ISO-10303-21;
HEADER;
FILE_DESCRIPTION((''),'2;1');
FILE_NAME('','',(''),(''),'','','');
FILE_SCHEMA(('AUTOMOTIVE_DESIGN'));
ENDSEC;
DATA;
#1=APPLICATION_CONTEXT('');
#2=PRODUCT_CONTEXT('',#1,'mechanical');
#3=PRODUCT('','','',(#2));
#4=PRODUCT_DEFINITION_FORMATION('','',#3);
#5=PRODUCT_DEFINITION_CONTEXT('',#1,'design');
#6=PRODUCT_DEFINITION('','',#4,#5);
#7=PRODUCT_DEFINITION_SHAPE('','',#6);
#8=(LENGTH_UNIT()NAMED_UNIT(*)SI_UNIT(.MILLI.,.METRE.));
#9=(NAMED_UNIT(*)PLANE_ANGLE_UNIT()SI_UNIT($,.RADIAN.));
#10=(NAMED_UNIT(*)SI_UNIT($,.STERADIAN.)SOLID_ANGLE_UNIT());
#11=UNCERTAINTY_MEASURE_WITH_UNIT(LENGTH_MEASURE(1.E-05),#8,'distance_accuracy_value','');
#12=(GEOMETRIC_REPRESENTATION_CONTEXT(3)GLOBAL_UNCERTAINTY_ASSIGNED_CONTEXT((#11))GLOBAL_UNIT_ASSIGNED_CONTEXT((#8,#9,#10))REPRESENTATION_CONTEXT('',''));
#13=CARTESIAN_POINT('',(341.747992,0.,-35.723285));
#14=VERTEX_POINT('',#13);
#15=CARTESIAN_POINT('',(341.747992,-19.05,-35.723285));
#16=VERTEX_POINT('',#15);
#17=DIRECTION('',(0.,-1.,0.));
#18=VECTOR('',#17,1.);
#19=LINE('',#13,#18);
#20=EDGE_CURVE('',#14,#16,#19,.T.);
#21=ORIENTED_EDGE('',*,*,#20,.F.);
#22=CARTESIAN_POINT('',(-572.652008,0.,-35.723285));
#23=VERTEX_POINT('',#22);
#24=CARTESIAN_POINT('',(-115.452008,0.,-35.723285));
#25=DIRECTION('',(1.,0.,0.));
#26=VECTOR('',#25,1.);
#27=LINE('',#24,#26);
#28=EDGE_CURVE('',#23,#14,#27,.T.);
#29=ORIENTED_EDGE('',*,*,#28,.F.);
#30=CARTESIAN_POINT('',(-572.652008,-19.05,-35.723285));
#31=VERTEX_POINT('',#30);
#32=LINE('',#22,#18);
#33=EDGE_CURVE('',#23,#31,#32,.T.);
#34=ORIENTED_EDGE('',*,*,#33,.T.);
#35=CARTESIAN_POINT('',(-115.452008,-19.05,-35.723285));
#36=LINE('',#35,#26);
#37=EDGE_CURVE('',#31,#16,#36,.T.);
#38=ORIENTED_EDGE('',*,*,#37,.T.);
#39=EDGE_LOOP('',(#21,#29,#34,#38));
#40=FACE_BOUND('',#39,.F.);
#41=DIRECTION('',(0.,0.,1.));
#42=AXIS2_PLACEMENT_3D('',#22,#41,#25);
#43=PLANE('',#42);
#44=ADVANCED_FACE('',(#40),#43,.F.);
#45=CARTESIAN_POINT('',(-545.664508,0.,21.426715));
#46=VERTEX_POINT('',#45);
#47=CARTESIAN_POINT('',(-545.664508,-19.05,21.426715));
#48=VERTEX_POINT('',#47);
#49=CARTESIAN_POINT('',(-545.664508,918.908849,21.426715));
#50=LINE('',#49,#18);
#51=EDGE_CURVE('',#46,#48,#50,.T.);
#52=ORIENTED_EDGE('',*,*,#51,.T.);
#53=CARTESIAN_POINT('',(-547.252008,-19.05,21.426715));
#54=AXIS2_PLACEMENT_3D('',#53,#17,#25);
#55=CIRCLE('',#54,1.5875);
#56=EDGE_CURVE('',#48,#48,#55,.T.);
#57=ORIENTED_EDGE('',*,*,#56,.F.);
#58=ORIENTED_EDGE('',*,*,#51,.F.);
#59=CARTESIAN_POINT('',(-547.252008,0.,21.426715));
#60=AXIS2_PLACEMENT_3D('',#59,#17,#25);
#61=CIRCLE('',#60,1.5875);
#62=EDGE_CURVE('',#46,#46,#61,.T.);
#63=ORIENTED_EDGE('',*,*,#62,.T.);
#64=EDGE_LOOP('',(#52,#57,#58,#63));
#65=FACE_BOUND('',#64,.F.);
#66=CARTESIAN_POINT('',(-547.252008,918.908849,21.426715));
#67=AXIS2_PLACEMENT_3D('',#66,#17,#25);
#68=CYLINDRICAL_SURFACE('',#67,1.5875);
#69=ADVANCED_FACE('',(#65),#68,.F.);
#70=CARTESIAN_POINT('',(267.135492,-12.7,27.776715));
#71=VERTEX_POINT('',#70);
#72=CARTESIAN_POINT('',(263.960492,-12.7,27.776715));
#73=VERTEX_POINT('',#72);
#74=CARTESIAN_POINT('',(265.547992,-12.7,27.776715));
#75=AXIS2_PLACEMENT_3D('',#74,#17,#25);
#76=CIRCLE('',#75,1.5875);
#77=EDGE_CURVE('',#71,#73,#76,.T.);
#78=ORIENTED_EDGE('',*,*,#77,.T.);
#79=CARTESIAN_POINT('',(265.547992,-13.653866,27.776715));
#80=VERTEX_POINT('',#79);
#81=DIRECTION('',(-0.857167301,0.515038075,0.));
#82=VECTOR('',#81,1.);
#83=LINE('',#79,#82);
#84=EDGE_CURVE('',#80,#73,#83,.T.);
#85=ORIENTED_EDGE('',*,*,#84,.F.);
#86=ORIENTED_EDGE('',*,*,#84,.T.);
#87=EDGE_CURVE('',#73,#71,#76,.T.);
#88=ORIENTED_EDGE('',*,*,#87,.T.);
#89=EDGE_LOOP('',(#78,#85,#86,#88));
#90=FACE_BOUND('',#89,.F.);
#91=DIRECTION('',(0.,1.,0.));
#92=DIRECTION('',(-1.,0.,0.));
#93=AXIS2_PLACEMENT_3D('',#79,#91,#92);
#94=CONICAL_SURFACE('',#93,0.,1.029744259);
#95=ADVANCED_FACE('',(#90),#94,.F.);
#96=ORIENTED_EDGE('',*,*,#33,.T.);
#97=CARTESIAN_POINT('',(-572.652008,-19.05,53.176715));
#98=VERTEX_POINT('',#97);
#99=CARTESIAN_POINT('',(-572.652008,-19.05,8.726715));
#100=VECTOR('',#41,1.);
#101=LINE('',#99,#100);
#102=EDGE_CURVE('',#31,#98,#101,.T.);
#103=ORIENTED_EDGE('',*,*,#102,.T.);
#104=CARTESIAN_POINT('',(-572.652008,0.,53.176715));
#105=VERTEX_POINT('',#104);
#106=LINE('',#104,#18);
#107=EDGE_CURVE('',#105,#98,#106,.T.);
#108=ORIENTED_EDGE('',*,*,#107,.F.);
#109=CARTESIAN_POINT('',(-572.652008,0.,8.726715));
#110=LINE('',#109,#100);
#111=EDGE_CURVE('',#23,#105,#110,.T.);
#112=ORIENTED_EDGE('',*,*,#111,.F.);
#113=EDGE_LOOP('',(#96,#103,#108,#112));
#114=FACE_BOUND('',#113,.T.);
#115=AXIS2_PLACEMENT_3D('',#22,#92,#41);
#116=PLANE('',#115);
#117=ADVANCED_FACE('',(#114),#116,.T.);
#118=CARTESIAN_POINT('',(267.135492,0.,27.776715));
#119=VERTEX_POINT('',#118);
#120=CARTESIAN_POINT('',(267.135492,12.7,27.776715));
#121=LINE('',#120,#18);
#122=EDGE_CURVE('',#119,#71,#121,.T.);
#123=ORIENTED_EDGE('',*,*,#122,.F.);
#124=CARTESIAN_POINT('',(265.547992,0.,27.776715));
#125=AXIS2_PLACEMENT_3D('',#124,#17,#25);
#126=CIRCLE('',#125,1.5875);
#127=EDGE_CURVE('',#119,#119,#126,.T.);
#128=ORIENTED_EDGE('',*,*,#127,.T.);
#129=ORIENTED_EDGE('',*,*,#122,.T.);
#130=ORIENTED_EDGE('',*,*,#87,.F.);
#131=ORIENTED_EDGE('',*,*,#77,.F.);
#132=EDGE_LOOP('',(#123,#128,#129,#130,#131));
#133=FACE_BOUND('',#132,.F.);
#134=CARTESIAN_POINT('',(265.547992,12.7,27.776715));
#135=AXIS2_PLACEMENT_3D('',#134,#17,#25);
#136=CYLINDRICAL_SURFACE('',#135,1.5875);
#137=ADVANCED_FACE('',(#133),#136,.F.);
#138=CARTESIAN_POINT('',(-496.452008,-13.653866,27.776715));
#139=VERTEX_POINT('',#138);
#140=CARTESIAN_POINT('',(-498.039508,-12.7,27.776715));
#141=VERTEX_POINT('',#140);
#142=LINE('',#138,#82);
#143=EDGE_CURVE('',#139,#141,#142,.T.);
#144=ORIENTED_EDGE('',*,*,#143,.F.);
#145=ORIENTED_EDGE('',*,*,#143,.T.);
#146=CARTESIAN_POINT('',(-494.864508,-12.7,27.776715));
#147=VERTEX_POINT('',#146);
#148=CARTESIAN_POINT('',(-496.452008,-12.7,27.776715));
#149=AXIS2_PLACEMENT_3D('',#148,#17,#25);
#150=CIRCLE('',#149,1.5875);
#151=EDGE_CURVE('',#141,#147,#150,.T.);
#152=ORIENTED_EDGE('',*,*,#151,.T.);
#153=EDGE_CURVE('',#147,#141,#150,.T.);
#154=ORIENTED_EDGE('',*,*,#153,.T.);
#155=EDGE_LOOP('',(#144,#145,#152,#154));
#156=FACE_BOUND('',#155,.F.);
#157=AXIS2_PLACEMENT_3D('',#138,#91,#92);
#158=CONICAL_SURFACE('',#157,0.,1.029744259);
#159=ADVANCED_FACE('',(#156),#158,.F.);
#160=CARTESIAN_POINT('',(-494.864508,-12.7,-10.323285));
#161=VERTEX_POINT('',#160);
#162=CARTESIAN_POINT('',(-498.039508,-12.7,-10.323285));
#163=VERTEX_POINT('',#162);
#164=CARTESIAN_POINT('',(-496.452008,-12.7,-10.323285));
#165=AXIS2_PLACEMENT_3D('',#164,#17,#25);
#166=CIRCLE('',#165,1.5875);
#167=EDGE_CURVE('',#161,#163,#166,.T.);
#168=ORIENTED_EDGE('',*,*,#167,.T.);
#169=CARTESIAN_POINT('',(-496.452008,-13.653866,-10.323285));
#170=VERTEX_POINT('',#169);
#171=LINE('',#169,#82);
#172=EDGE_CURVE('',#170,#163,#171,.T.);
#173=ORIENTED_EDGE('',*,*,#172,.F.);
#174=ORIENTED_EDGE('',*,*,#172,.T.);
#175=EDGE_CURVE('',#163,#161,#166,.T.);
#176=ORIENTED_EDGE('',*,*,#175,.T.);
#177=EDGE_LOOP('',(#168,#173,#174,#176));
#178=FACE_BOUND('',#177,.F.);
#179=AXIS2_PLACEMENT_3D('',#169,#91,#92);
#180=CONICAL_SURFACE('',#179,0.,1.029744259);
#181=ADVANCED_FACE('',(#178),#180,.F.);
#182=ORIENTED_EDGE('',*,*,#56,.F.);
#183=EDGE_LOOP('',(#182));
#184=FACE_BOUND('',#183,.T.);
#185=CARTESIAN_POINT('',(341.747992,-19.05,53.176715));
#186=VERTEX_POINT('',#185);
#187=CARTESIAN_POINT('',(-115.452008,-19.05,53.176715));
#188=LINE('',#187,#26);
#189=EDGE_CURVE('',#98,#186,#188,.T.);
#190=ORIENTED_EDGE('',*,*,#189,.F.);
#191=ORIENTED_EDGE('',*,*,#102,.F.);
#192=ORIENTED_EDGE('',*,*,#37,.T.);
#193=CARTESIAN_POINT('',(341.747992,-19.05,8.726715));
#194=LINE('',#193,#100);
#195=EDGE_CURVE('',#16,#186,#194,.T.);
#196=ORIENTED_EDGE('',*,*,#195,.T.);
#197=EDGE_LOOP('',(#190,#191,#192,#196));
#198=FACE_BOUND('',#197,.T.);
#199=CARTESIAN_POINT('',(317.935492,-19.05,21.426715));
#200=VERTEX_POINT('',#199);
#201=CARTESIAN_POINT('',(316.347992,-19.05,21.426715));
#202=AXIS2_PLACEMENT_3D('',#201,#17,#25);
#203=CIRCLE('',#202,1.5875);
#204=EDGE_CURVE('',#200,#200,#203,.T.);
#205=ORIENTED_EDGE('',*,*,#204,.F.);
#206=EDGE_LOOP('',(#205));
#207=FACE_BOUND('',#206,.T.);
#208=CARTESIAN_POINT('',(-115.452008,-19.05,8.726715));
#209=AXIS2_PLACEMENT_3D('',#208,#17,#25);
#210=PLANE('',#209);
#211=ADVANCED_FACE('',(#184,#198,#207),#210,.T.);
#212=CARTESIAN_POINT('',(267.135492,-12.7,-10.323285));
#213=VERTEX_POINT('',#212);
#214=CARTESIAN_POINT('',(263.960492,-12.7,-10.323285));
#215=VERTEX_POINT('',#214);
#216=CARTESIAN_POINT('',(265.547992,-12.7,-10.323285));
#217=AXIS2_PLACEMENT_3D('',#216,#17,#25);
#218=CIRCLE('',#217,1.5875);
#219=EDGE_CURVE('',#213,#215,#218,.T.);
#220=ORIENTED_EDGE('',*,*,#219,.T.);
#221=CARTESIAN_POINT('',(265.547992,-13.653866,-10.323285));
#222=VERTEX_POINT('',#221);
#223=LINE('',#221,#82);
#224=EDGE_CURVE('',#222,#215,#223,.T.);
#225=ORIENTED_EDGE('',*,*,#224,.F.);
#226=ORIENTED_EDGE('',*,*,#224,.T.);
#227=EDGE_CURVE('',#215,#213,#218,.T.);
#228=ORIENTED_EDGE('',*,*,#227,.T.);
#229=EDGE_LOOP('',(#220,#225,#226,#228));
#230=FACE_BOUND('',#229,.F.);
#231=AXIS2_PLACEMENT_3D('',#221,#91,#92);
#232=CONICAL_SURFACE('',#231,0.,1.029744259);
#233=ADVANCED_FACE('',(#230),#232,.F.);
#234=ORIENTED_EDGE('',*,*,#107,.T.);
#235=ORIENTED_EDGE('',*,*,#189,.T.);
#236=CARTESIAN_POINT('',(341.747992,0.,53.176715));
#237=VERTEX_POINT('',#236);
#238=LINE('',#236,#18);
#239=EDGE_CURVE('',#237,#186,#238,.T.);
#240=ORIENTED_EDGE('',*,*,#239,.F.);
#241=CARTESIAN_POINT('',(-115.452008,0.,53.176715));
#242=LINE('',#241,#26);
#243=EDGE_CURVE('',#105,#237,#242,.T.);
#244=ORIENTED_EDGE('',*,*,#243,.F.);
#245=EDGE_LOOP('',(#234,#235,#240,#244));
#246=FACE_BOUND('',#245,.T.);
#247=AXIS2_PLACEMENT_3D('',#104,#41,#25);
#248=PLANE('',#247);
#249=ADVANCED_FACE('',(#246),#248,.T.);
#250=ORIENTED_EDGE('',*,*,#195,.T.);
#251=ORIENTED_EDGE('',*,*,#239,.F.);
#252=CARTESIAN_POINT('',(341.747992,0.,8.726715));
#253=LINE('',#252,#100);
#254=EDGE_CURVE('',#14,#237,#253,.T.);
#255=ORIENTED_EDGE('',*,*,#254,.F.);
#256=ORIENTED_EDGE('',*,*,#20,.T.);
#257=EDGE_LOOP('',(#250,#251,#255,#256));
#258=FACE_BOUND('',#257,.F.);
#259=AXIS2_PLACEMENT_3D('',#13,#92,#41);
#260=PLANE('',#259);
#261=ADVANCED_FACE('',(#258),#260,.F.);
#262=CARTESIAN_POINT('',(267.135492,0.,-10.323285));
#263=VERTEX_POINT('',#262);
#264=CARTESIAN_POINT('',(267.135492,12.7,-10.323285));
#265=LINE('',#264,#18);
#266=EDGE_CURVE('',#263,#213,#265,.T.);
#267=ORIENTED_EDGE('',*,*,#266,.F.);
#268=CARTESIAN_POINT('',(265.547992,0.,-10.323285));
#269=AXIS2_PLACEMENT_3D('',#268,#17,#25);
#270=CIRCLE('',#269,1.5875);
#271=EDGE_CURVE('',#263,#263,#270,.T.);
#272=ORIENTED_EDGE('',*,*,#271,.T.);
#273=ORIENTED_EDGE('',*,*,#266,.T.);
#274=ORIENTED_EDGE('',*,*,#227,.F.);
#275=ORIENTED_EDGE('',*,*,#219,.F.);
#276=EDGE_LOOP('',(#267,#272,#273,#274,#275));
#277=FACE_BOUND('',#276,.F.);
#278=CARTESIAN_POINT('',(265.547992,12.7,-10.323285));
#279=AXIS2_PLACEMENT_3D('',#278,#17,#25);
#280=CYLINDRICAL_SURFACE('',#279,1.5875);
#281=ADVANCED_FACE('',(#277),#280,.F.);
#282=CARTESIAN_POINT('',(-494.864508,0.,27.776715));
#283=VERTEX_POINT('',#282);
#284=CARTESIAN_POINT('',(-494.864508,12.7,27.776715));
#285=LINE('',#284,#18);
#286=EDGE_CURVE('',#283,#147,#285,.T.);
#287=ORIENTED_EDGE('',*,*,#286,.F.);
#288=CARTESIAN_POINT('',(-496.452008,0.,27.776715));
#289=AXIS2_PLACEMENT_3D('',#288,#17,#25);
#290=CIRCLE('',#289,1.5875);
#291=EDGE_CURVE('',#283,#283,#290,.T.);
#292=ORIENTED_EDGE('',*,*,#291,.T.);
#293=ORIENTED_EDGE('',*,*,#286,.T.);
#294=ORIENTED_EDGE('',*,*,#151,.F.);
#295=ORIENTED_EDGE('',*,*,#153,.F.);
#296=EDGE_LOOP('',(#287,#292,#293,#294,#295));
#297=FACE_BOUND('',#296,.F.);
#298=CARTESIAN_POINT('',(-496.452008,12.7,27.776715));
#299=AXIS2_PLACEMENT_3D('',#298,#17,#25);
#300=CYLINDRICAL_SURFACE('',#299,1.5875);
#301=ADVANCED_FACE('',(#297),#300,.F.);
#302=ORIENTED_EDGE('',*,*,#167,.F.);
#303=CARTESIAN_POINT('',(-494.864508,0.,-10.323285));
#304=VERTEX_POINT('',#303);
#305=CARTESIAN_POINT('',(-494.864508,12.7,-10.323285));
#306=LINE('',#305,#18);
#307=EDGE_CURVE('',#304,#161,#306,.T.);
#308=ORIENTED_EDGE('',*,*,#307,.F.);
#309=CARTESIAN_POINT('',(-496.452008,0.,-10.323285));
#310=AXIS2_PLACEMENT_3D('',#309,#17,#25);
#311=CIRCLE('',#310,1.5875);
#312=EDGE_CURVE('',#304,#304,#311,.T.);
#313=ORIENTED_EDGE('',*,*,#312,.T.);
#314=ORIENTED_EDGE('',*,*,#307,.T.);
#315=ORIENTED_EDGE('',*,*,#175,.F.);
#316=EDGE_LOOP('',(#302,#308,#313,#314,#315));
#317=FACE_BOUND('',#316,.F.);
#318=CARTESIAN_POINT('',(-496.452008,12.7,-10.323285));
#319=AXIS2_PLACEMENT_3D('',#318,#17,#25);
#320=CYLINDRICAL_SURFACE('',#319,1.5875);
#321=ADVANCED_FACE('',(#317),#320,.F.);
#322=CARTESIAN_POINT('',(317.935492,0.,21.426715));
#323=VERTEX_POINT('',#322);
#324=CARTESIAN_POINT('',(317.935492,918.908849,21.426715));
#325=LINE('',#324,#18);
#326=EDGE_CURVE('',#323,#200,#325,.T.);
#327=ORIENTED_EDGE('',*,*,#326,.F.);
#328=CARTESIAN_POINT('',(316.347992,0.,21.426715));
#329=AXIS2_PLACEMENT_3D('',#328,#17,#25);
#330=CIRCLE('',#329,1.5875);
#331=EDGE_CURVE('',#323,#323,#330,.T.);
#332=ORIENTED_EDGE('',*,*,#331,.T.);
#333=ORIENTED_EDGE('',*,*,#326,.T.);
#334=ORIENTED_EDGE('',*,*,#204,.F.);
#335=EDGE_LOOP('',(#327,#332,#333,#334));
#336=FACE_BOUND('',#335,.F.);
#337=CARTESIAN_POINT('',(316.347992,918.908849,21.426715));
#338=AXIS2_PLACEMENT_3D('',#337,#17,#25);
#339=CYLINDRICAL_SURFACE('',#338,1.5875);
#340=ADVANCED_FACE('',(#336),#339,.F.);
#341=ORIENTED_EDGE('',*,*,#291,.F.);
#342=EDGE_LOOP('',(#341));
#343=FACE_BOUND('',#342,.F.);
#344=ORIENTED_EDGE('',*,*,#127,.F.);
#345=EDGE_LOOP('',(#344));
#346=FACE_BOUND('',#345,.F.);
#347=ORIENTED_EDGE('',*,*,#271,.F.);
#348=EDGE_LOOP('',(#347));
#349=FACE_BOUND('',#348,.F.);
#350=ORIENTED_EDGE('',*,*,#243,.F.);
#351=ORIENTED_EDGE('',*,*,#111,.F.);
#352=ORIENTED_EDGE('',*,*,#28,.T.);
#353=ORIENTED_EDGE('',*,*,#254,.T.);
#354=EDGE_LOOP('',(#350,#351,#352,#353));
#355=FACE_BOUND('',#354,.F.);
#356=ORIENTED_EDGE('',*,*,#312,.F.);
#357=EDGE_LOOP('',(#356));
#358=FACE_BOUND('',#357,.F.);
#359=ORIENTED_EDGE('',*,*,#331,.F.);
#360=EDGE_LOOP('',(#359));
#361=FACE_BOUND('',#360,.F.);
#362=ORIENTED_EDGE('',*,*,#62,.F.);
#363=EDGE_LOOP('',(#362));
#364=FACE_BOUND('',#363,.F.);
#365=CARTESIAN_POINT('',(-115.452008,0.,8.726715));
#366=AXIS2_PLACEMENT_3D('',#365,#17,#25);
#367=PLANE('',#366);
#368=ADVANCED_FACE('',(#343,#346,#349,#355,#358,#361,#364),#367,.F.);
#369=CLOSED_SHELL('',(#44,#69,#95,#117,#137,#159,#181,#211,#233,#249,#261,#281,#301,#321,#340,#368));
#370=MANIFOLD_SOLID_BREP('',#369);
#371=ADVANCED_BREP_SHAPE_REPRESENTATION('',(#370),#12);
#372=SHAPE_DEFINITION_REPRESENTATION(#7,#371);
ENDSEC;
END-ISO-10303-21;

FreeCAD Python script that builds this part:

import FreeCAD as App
import Part
import Sketcher
Q = App.Units.Quantity


def add_polygon(sketch, points):
    """Adds a closed chain of lines whose ends are joined by coincident constraints."""
    first, n = sketch.GeometryCount, len(points)
    for a, b in zip(points, points[1:] + points[:1]):
        sketch.addGeometry(Part.LineSegment(App.Vector(*a, 0), App.Vector(*b, 0)), False)
    for i in range(n):
        sketch.addConstraint(Sketcher.Constraint("Coincident", first + i, 2, first + (i + 1) % n, 1))

doc = App.newDocument("Part")
body = doc.addObject("PartDesign::Body", "Body")

sketch1 = body.newObject("Sketcher::SketchObject", "Sketch")
sketch1.AttachmentSupport = (doc.getObject("XZ_Plane"), [""])
sketch1.MapMode = "FlatFace"
add_polygon(sketch1, [(-573, 53), (-573, -36), (342, -36), (342, 53)])
sketch1.addConstraint([
    Sketcher.Constraint("Vertical", 0),
    Sketcher.Constraint("Horizontal", 1),
    Sketcher.Constraint("Vertical", 2),
    Sketcher.Constraint("Horizontal", 3),
    Sketcher.Constraint("DistanceX", 1, 1, 1, 2, Q("36 in")),
    Sketcher.Constraint("DistanceY", 0, 2, 0, 1, Q("3.5 in")),
    Sketcher.Constraint("DistanceX", 0, 2, -1, 1, Q("572.652008 mm")),
    Sketcher.Constraint("DistanceY", 0, 2, -1, 1, Q("35.723285 mm")),
])
pad1 = body.newObject("PartDesign::Pad", "Pad")
pad1.Profile = sketch1
pad1.Length = Q("0.75 in")

sketch2 = body.newObject("Sketcher::SketchObject", "Sketch001")
sketch2.AttachmentSupport = (doc.getObject("XZ_Plane"), [""])
sketch2.MapMode = "FlatFace"
sketch2.addGeometry([
    Part.Circle(App.Vector(265.5, -10.3, 0), App.Vector(0, 0, 1), 1.6),
    Part.Circle(App.Vector(265.5, 27.8, 0), App.Vector(0, 0, 1), 1.6),
    Part.Circle(App.Vector(-496.5, -10.3, 0), App.Vector(0, 0, 1), 1.6),
    Part.Circle(App.Vector(-496.5, 27.8, 0), App.Vector(0, 0, 1), 1.6),
], False)
sketch2.addConstraint([
    Sketcher.Constraint("Equal", 0, 1),
    Sketcher.Constraint("Equal", 1, 2),
    Sketcher.Constraint("Equal", 2, 3),
    Sketcher.Constraint("Horizontal", 0, 3, 2, 3),
    Sketcher.Constraint("Horizontal", 1, 3, 3, 3),
    Sketcher.Constraint("Vertical", 0, 3, 1, 3),
    Sketcher.Constraint("Vertical", 2, 3, 3, 3),
    Sketcher.Constraint("Diameter", 0, Q("0.125 in")),
    Sketcher.Constraint("DistanceX", 2, 3, 0, 3, Q("30 in")),
    Sketcher.Constraint("DistanceY", 0, 3, 1, 3, Q("1.5 in")),
    Sketcher.Constraint("DistanceX", -1, 1, 0, 3, Q("265.547992 mm")),
    Sketcher.Constraint("DistanceY", 0, 3, -1, 1, Q("10.323285 mm")),
])
doc.recompute()
hole = body.newObject("PartDesign::Hole", "Hole")
hole.Profile = sketch2
hole.ThreadType = "None"
hole.Diameter = Q("0.125 in")
hole.DepthType = "Dimension"
hole.Depth = Q("0.5 in")
hole.DrillPoint = "Angled"
hole.DrillPointAngle = 118
hole.Reversed = True

sketch3 = body.newObject("Sketcher::SketchObject", "Sketch002")
sketch3.AttachmentSupport = (doc.getObject("XZ_Plane"), [""])
sketch3.MapMode = "FlatFace"
sketch3.addGeometry([
    Part.Circle(App.Vector(316.3, 21.4, 0), App.Vector(0, 0, 1), 1.6),
    Part.Circle(App.Vector(-547.3, 21.4, 0), App.Vector(0, 0, 1), 1.6),
], False)
sketch3.addConstraint([
    Sketcher.Constraint("Equal", 0, 1),
    Sketcher.Constraint("Horizontal", 0, 3, 1, 3),
    Sketcher.Constraint("Diameter", 0, Q("0.125 in")),
    Sketcher.Constraint("DistanceX", 1, 3, 0, 3, Q("34 in")),
    Sketcher.Constraint("DistanceX", -1, 1, 0, 3, Q("316.347992 mm")),
    Sketcher.Constraint("DistanceY", -1, 1, 0, 3, Q("21.426715 mm")),
])
doc.recompute()
hole2 = body.newObject("PartDesign::Hole", "Hole001")
hole2.Profile = sketch3
hole2.ThreadType = "None"
hole2.Diameter = Q("0.125 in")
hole2.DepthType = "ThroughAll"
hole2.Reversed = True

doc.recompute()
